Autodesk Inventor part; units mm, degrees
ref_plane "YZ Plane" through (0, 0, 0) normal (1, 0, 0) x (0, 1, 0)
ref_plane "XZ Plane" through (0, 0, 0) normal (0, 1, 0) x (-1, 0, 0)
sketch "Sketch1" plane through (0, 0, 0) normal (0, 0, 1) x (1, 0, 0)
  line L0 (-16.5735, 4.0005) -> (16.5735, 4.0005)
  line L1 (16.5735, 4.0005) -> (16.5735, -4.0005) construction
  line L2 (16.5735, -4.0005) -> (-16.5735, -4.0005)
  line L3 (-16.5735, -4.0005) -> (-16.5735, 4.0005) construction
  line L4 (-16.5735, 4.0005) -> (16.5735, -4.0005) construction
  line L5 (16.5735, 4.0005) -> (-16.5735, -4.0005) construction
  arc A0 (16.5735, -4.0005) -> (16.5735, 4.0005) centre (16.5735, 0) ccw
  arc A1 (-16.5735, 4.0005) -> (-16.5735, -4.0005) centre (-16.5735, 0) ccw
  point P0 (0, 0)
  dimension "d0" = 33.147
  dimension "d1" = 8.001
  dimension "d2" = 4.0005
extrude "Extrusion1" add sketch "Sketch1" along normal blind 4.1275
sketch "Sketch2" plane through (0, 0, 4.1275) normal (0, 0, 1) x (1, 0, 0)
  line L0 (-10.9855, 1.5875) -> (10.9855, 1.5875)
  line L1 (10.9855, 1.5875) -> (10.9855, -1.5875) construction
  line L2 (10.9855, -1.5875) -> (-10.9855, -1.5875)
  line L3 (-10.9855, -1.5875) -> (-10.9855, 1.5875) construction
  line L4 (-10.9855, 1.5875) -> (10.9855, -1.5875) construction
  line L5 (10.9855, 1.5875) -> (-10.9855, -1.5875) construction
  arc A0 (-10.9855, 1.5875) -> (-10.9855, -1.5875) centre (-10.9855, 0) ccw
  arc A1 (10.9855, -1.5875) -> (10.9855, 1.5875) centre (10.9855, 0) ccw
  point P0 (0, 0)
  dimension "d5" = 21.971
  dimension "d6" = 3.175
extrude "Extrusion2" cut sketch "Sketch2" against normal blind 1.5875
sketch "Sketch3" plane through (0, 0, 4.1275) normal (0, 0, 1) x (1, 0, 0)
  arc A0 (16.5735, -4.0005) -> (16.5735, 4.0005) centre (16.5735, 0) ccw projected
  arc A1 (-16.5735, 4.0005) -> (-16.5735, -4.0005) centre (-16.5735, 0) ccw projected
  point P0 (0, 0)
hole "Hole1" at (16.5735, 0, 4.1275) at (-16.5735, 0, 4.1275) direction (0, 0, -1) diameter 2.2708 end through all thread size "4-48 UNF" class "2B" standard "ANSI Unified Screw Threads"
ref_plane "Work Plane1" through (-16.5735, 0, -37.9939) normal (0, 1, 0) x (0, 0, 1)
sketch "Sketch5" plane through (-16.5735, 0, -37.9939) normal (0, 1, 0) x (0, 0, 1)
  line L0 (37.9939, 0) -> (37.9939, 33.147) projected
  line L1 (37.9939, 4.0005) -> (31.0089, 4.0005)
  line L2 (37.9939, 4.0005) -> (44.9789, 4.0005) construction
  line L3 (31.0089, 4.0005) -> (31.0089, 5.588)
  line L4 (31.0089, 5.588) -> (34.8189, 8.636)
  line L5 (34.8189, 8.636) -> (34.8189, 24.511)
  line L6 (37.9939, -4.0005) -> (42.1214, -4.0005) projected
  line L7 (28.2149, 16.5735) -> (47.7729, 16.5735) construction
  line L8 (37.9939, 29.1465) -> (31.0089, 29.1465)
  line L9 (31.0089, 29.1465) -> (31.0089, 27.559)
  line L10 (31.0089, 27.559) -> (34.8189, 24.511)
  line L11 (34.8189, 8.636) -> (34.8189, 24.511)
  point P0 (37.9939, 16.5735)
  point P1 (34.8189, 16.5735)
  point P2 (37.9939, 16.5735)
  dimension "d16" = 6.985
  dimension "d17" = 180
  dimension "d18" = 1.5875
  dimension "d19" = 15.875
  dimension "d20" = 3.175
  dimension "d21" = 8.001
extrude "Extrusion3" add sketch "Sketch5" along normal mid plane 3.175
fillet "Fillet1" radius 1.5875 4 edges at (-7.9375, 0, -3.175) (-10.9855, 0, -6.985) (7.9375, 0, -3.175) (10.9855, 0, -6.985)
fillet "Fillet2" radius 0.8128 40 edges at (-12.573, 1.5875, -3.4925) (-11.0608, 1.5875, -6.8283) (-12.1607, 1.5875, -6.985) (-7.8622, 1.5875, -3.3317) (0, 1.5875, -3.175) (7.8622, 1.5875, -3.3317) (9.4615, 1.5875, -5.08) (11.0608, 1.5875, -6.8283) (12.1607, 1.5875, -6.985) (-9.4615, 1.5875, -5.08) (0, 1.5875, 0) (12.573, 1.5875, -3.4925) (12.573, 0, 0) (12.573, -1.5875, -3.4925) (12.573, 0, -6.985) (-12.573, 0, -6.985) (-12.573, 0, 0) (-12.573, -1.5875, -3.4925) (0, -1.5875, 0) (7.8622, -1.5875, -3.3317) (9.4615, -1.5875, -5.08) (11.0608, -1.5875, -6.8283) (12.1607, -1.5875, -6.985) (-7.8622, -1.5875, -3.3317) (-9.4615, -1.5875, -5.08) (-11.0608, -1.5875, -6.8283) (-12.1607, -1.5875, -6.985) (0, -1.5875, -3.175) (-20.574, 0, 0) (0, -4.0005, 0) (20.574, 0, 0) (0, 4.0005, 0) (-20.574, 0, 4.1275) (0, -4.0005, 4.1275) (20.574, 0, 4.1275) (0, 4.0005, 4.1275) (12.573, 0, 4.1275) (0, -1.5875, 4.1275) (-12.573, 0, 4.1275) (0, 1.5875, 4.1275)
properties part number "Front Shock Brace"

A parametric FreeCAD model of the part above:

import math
import FreeCAD as App
import Part
import Sketcher

V = App.Vector
Q = App.Units.Quantity


def edges_at(feature, points):
    """Names of the edges that pass closest to the given points."""
    edges = feature.Shape.Edges
    near = lambda p: min(range(len(edges)), key=lambda i: edges[i].distToShape(Part.Vertex(*p))[0])
    return sorted({f"Edge{near(p) + 1}" for p in points})

doc = App.newDocument("Part")
body = doc.addObject("PartDesign::Body", "Body")

# Sketch on XY plane
sketch1 = body.newObject("Sketcher::SketchObject", "Sketch")
sketch1.AttachmentSupport = (doc.getObject("XY_Plane"), [""])
sketch1.MapMode = "FlatFace"
sketch1.addGeometry([
    Part.LineSegment(V(16.6, 4, 0), V(-16.6, 4, 0)),
    Part.ArcOfCircle(Part.Circle(V(-16.6, 0, 0), V(0, 0, 1), 4), math.radians(90), math.radians(270)),
    Part.LineSegment(V(-16.6, -4, 0), V(16.6, -4, 0)),
    Part.ArcOfCircle(Part.Circle(V(16.6, 0, 0), V(0, 0, 1), 4), math.radians(-90), math.radians(90)),
], False)
sketch1.addConstraint([
    Sketcher.Constraint("Tangent", 0, 2, 1, 1),
    Sketcher.Constraint("Tangent", 1, 2, 2, 1),
    Sketcher.Constraint("Tangent", 2, 2, 3, 1),
    Sketcher.Constraint("Tangent", 3, 2, 0, 1),
    Sketcher.Constraint("Horizontal", 0),
    Sketcher.Constraint("Horizontal", 2),
    Sketcher.Constraint("Symmetric", 1, 3, 3, 3, -1, 1),
    Sketcher.Constraint("Radius", 1, Q("0.1575 in")),
    Sketcher.Constraint("DistanceX", 0, 2, 0, 1, Q("1.305 in")),
])
pad1 = body.newObject("PartDesign::Pad", "Pad")
pad1.Profile = sketch1
pad1.Length = Q("0.1625 in")

# Sketch on XY plane
sketch2 = body.newObject("Sketcher::SketchObject", "Sketch001")
sketch2.AttachmentSupport = (doc.getObject("XY_Plane"), [""])
sketch2.MapMode = "FlatFace"
sketch2.AttachmentOffset = App.Placement(V(0, 0, 0.1625 * 25.4), App.Rotation())
sketch2.addGeometry([
    Part.LineSegment(V(11, 1.6, 0), V(-11, 1.6, 0)),
    Part.ArcOfCircle(Part.Circle(V(-11, 0, 0), V(0, 0, 1), 1.6), math.radians(90), math.radians(270)),
    Part.LineSegment(V(-11, -1.6, 0), V(11, -1.6, 0)),
    Part.ArcOfCircle(Part.Circle(V(11, 0, 0), V(0, 0, 1), 1.6), math.radians(-90), math.radians(90)),
], False)
sketch2.addConstraint([
    Sketcher.Constraint("Tangent", 0, 2, 1, 1),
    Sketcher.Constraint("Tangent", 1, 2, 2, 1),
    Sketcher.Constraint("Tangent", 2, 2, 3, 1),
    Sketcher.Constraint("Tangent", 3, 2, 0, 1),
    Sketcher.Constraint("Horizontal", 0),
    Sketcher.Constraint("Horizontal", 2),
    Sketcher.Constraint("Symmetric", 1, 3, 3, 3, -1, 1),
    Sketcher.Constraint("Radius", 1, Q("0.0625 in")),
    Sketcher.Constraint("DistanceX", 0, 2, 0, 1, Q("0.865 in")),
])
pocket1 = body.newObject("PartDesign::Pocket", "Pocket")
pocket1.Profile = sketch2
pocket1.Length = Q("0.0625 in")

# Sketch on XY plane
sketch3 = body.newObject("Sketcher::SketchObject", "Sketch002")
sketch3.AttachmentSupport = (doc.getObject("XY_Plane"), [""])
sketch3.MapMode = "FlatFace"
sketch3.AttachmentOffset = App.Placement(V(0, 0, 0.1625 * 25.4), App.Rotation())
sketch3.addGeometry([
    Part.Circle(V(16.6, 0, 0), V(0, 0, 1), 1.1),
    Part.Circle(V(-16.6, 0, 0), V(0, 0, 1), 1.1),
], False)
sketch3.addConstraint([
    Sketcher.Constraint("Equal", 0, 1),
    Sketcher.Constraint("Symmetric", 0, 3, 1, 3, -1, 1),
    Sketcher.Constraint("PointOnObject", 0, 3, -1),
    Sketcher.Constraint("Diameter", 0, Q("0.0894 in")),
    Sketcher.Constraint("DistanceX", 1, 3, 0, 3, Q("1.305 in")),
])
doc.recompute()
hole = body.newObject("PartDesign::Hole", "Hole")
hole.Profile = sketch3
hole.ThreadType = "None"
hole.Diameter = Q("0.0894016 in")
hole.DepthType = "ThroughAll"

# Sketch on XZ plane
sketch4 = body.newObject("Sketcher::SketchObject", "Sketch003")
sketch4.AttachmentSupport = (doc.getObject("XZ_Plane"), [""])
sketch4.MapMode = "FlatFace"
sketch4.addGeometry([
    Part.LineSegment(V(-12.6, -7, 0), V(-12.6, 0, 0)),  # 0
    Part.LineSegment(V(-12.6, 0, 0), V(12.6, 0, 0)),  # 1
    Part.LineSegment(V(12.6, 0, 0), V(12.6, -7, 0)),  # 2
    Part.LineSegment(V(12.6, -7, 0), V(11, -7, 0)),  # 3
    Part.LineSegment(V(11, -7, 0), V(7.9, -3.2, 0)),  # 4
    Part.LineSegment(V(7.9, -3.2, 0), V(-7.9, -3.2, 0)),  # 5
    Part.LineSegment(V(-7.9, -3.2, 0), V(-11, -7, 0)),  # 6
    Part.LineSegment(V(-11, -7, 0), V(-12.6, -7, 0)),  # 7
], False)
sketch4.addConstraint([
    Sketcher.Constraint("Coincident", 0, 2, 1, 1),
    Sketcher.Constraint("Coincident", 1, 2, 2, 1),
    Sketcher.Constraint("Coincident", 2, 2, 3, 1),
    Sketcher.Constraint("Coincident", 3, 2, 4, 1),
    Sketcher.Constraint("Coincident", 4, 2, 5, 1),
    Sketcher.Constraint("Coincident", 5, 2, 6, 1),
    Sketcher.Constraint("Coincident", 6, 2, 7, 1),
    Sketcher.Constraint("Coincident", 7, 2, 0, 1),
    Sketcher.Constraint("Vertical", 0),
    Sketcher.Constraint("Horizontal", 1),
    Sketcher.Constraint("Vertical", 2),
    Sketcher.Constraint("Horizontal", 3),
    Sketcher.Constraint("Horizontal", 5),
    Sketcher.Constraint("Horizontal", 7),
    Sketcher.Constraint("Symmetric", 0, 2, 1, 2, -1, 1),
    Sketcher.Constraint("Symmetric", 3, 2, 6, 2, -2),
    Sketcher.Constraint("Equal", 4, 6),
    Sketcher.Constraint("DistanceX", 3, 2, 3, 1, Q("0.0625 in")),
    Sketcher.Constraint("DistanceX", 5, 2, 5, 1, Q("0.625 in")),
    Sketcher.Constraint("DistanceY", 0, 1, 0, 2, Q("0.275 in")),
    Sketcher.Constraint("DistanceY", 4, 2, -1, 1, Q("0.125 in")),
    Sketcher.Constraint("DistanceX", 1, 1, 1, 2, Q("0.99 in")),
])
pad2 = body.newObject("PartDesign::Pad", "Pad001")
pad2.Profile = sketch4
pad2.Length = Q("0.125 in")
pad2.Midplane = True
doc.recompute()

fillet = body.newObject("PartDesign::Fillet", "Fillet")
fillet.Base = (pad2, edges_at(pad2, [
    (-7.938, 0, -3.175),
    (-10.986, 0, -6.985),
    (7.938, 0, -3.175),
    (10.986, 0, -6.985),
]))
fillet.Radius = Q("0.0625 in")
doc.recompute()

fillet2 = body.newObject("PartDesign::Fillet", "Fillet001")
fillet2.Base = (fillet, edges_at(fillet, [
    (-12.573, 1.587, -3.493),
    (-11.061, 1.587, -6.828),
    (-12.161, 1.587, -6.985),
    (-7.862, 1.587, -3.332),
    (0, 1.587, -3.175),
    (7.862, 1.587, -3.332),
    (9.461, 1.587, -5.08),
    (11.061, 1.587, -6.828),
    (12.161, 1.587, -6.985),
    (-9.461, 1.587, -5.08),
    (0, 1.587, 0),
    (12.573, 1.587, -3.493),
    (12.573, 0, 0),
    (12.573, -1.587, -3.493),
    (12.573, 0, -6.985),
    (-12.573, 0, -6.985),
    (-12.573, 0, 0),
    (-12.573, -1.587, -3.493),
    (0, -1.587, 0),
    (7.862, -1.587, -3.332),
    (9.461, -1.587, -5.08),
    (11.061, -1.587, -6.828),
    (12.161, -1.587, -6.985),
    (-7.862, -1.587, -3.332),
    (-9.461, -1.587, -5.08),
    (-11.061, -1.587, -6.828),
    (-12.161, -1.587, -6.985),
    (0, -1.587, -3.175),
    (-20.574, 0, 0),
    (0, -4, 0),
    (20.574, 0, 0),
    (0, 4, 0),
    (-20.574, 0, 4.128),
    (0, -4, 4.128),
    (20.574, 0, 4.128),
    (0, 4, 4.128),
    (12.573, 0, 4.128),
    (0, -1.587, 4.128),
    (-12.573, 0, 4.128),
    (0, 1.587, 4.128),
]))
fillet2.Radius = Q("0.032 in")

doc.recompute()
